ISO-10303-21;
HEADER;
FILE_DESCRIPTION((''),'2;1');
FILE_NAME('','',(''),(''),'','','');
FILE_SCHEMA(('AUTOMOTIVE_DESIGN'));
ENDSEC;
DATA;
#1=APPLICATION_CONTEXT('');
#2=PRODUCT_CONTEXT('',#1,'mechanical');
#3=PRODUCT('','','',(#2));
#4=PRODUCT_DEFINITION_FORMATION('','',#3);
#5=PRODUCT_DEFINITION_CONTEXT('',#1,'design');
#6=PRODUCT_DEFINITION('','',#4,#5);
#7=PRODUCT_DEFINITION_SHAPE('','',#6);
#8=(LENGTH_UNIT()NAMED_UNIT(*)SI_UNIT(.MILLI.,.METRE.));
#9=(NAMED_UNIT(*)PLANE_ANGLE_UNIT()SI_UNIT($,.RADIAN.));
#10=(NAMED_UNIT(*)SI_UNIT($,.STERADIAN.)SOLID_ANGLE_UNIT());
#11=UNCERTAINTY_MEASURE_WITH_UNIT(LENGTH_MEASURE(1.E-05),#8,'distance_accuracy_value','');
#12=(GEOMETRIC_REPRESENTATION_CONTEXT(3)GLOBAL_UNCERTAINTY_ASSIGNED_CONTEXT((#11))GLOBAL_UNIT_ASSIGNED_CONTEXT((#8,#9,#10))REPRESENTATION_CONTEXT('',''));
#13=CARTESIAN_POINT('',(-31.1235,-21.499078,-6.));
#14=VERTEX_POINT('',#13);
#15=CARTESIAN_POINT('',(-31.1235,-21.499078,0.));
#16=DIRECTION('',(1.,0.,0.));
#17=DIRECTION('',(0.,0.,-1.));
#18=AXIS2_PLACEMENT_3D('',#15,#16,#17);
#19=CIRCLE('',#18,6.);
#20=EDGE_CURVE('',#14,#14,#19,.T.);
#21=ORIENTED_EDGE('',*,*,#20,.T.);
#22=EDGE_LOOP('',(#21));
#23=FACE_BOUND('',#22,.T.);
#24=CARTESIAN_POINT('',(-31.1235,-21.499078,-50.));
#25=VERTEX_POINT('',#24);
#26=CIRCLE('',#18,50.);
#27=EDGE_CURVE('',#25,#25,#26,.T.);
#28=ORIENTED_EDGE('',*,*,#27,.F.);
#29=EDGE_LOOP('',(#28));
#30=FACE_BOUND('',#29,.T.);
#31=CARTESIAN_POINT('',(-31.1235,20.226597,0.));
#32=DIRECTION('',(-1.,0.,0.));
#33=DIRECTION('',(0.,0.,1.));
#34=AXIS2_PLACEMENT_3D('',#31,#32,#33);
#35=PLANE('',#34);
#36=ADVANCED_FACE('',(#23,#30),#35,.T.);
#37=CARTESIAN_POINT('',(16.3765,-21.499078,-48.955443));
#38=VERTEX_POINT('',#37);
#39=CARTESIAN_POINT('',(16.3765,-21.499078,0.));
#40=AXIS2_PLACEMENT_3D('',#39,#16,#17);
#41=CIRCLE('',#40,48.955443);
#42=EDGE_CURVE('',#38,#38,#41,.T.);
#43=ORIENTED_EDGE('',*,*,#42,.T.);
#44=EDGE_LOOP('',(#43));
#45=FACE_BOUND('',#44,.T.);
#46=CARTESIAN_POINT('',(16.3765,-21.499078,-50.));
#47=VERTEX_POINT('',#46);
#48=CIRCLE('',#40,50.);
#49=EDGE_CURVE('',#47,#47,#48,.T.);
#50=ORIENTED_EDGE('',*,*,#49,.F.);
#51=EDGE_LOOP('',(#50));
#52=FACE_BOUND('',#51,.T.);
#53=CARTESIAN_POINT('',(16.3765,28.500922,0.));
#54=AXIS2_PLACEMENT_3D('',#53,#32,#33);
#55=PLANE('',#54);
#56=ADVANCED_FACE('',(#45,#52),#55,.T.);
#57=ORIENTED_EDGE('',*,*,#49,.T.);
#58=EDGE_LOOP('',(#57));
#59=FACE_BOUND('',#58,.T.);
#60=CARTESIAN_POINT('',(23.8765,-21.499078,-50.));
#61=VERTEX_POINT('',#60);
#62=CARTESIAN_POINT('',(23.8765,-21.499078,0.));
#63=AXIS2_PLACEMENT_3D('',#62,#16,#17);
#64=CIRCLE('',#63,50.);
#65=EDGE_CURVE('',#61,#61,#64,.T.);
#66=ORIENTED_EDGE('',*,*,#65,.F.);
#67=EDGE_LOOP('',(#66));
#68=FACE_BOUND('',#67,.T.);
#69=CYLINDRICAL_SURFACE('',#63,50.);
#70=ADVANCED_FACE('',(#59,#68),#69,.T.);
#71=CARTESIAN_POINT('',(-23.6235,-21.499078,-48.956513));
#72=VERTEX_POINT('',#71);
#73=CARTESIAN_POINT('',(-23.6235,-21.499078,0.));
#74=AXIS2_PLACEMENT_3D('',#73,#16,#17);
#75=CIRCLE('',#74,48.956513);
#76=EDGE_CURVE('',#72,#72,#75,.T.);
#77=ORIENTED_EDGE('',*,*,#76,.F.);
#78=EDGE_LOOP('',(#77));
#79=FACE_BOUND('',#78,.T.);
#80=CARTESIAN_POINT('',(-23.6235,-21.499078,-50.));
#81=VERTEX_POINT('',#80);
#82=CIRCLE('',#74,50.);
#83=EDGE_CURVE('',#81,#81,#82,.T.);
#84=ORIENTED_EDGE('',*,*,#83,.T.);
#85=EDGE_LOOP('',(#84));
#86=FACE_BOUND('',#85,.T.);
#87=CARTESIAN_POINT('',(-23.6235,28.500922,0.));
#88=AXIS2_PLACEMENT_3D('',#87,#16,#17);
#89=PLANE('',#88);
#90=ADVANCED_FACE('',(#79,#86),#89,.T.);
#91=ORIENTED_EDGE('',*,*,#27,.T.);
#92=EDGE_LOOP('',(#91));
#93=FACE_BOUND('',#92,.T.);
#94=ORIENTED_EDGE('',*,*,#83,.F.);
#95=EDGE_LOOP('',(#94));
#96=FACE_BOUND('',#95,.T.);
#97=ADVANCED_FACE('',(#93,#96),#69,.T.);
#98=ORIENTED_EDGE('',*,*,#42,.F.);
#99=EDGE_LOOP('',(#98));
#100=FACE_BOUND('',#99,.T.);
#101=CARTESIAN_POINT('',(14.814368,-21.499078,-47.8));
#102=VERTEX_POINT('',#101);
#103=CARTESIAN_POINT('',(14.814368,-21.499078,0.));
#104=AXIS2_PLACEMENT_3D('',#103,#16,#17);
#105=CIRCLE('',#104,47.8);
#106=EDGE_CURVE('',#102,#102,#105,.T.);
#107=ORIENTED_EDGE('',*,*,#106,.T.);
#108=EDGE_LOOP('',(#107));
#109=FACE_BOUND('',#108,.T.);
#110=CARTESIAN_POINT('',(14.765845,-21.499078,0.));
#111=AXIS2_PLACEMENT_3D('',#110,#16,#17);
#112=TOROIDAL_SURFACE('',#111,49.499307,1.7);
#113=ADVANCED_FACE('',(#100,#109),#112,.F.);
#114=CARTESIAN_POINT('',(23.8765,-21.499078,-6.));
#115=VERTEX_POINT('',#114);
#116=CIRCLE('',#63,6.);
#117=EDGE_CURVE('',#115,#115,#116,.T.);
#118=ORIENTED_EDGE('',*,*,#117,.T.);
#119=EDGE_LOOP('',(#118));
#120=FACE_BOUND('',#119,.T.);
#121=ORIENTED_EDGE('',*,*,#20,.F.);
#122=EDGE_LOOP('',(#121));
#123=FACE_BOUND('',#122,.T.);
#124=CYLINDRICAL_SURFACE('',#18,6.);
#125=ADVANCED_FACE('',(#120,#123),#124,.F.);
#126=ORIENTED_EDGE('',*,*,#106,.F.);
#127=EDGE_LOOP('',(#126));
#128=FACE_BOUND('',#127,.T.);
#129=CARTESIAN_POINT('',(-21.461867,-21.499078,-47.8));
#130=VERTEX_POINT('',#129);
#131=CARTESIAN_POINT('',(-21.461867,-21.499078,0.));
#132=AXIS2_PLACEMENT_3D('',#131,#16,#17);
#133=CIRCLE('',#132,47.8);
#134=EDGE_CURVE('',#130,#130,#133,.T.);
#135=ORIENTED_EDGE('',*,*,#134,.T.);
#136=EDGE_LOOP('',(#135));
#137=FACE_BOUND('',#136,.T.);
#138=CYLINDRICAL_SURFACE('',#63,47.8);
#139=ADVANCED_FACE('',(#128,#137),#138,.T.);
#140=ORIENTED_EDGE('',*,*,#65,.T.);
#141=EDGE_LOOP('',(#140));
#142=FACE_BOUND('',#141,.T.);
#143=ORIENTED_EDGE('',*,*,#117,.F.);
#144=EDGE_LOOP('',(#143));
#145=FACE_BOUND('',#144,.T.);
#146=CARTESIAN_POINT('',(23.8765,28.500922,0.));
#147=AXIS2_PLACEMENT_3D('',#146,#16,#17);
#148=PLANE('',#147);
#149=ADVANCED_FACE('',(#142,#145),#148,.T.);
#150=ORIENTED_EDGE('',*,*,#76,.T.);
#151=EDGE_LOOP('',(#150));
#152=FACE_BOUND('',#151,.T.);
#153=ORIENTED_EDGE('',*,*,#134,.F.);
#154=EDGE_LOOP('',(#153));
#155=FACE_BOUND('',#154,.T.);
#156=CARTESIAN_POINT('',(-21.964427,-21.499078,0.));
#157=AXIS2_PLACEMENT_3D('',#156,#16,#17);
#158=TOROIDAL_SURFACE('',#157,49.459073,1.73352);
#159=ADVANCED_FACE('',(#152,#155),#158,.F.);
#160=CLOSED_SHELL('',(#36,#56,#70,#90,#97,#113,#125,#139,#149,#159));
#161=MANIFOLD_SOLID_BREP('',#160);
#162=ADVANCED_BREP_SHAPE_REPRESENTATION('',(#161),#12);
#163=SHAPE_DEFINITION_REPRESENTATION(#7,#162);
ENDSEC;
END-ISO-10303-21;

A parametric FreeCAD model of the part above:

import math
import FreeCAD as App
import Part
import Sketcher

V = App.Vector

doc = App.newDocument("Part")
params = doc.addObject("Spreadsheet::Sheet", "Params")
for row, (alias, value) in enumerate([
    ("sketch1_radius", "1.7 mm"),
    ("sketch1_width", "55 mm"),
    ("sketch1_height", "50 mm"),
    ("sketch1_width2", "7.5 mm"),
    ("revolution_angle", "360 deg"),
    ("sketch2_diameter", "12 mm"),
], start=1):
    params.set(f"A{row}", alias)
    params.set(f"B{row}", "=" + value)
    params.setAlias(f"B{row}", alias)

body = doc.addObject("PartDesign::Body", "Body")

# Sketch on XY plane
sketch1 = doc.addObject("Sketcher::SketchObject", "Sketch")
body.addObject(sketch1)
sketch1.AttachmentSupport = (doc.XY_Plane, [""])
sketch1.MapMode = "FlatFace"
sketch1.addGeometry(Part.LineSegment(V(23.9, -21.5, 0), V(23.9, 28.5, 0)), False)
sketch1.addGeometry(Part.LineSegment(V(23.9, 28.5, 0), V(16.4, 28.5, 0)), False)
sketch1.addGeometry(Part.LineSegment(V(16.4, 28.5, 0), V(16.4, 27.5, 0)), False)
sketch1.addGeometry(Part.ArcOfCircle(Part.Circle(V(14.8, 28, 0), V(0, 0, 1), 1.7), math.radians(-88), math.radians(-19)), False)
sketch1.addGeometry(Part.LineSegment(V(14.8, 26.3, 0), V(-21.5, 26.3, 0)), False)
sketch1.addGeometry(Part.ArcOfCircle(Part.Circle(V(-22, 28, 0), V(0, 0, 1), 1.7), math.radians(-163), math.radians(-73)), False)
sketch1.addGeometry(Part.LineSegment(V(-23.6, 27.5, 0), V(-23.6, 28.5, 0)), False)
sketch1.addGeometry(Part.LineSegment(V(-23.6, 28.5, 0), V(-31.1, 28.5, 0)), False)
sketch1.addGeometry(Part.LineSegment(V(-31.1, 28.5, 0), V(-31.1, -21.5, 0)), False)
sketch1.addGeometry(Part.LineSegment(V(-31.1, -21.5, 0), V(23.9, -21.5, 0)), False)
sketch1.addGeometry(Part.LineSegment(V(23.9, -21.5, 0), V(-31.1, -21.5, 0)), True)  # axis
sketch1.addConstraint(Sketcher.Constraint("Coincident", 0, 2, 1, 1))
sketch1.addConstraint(Sketcher.Constraint("Coincident", 1, 2, 2, 1))
sketch1.addConstraint(Sketcher.Constraint("Coincident", 2, 2, 3, 2))
sketch1.addConstraint(Sketcher.Constraint("Coincident", 3, 1, 4, 1))
sketch1.addConstraint(Sketcher.Constraint("Coincident", 4, 2, 5, 2))
sketch1.addConstraint(Sketcher.Constraint("Coincident", 5, 1, 6, 1))
sketch1.addConstraint(Sketcher.Constraint("Coincident", 6, 2, 7, 1))
sketch1.addConstraint(Sketcher.Constraint("Coincident", 7, 2, 8, 1))
sketch1.addConstraint(Sketcher.Constraint("Coincident", 8, 2, 9, 1))
sketch1.addConstraint(Sketcher.Constraint("Coincident", 9, 2, 0, 1))
sketch1.addConstraint(Sketcher.Constraint("Vertical", 0))
sketch1.addConstraint(Sketcher.Constraint("Horizontal", 1))
sketch1.addConstraint(Sketcher.Constraint("Vertical", 2))
sketch1.addConstraint(Sketcher.Constraint("Horizontal", 4))
sketch1.addConstraint(Sketcher.Constraint("Vertical", 6))
sketch1.addConstraint(Sketcher.Constraint("Horizontal", 7))
sketch1.addConstraint(Sketcher.Constraint("Vertical", 8))
sketch1.addConstraint(Sketcher.Constraint("Horizontal", 9))
sketch1.addConstraint(Sketcher.Constraint("Horizontal", 10))
sketch1.addConstraint(Sketcher.Constraint("Coincident", 10, 1, 9, 2))
sketch1.addConstraint(Sketcher.Constraint("Horizontal", 1, 2, 6, 2))
sketch1.addConstraint(Sketcher.Constraint("Vertical", 7, 2, 10, 2))
sketch1.addConstraint(Sketcher.Constraint("Equal", 1, 7))
sketch1.addConstraint(Sketcher.Constraint("Radius", 3, 1.7))
sketch1.addConstraint(Sketcher.Constraint("DistanceX", 9, 1, 9, 2, 55.0))
sketch1.addConstraint(Sketcher.Constraint("DistanceY", 0, 1, 0, 2, 50.0))
sketch1.addConstraint(Sketcher.Constraint("DistanceX", 1, 2, 1, 1, 7.5))
sketch1.addConstraint(Sketcher.Constraint("DistanceY", 3, 1, 1, 2, 2.2))
sketch1.addConstraint(Sketcher.Constraint("Radius", 5, 1.73352))
sketch1.addConstraint(Sketcher.Constraint("DistanceX", -1, 1, 0, 2, 23.8765))
sketch1.addConstraint(Sketcher.Constraint("DistanceX", 4, 2, 4, 1, 36.276235))
sketch1.addConstraint(Sketcher.Constraint("DistanceY", 2, 2, 2, 1, 1.044557))
sketch1.addConstraint(Sketcher.Constraint("DistanceY", 6, 1, 6, 2, 1.043487))
sketch1.addConstraint(Sketcher.Constraint("DistanceY", -1, 1, 3, 3, 28.000229))
sketch1.addConstraint(Sketcher.Constraint("DistanceY", -1, 1, 0, 2, 28.500922))
sketch1.setExpression("Constraints[23]", "Params.sketch1_radius")
sketch1.setExpression("Constraints[24]", "Params.sketch1_width")
sketch1.setExpression("Constraints[25]", "Params.sketch1_height")
sketch1.setExpression("Constraints[26]", "Params.sketch1_width2")
revolution = doc.addObject("PartDesign::Revolution", "Revolution")
body.addObject(revolution)
revolution.Profile = sketch1
revolution.ReferenceAxis = (sketch1, ["Axis0"])
revolution.setExpression("Angle", "Params.revolution_angle")

# Sketch on YZ plane
sketch2 = doc.addObject("Sketcher::SketchObject", "Sketch001")
body.addObject(sketch2)
sketch2.AttachmentSupport = (doc.YZ_Plane, [""])
sketch2.MapMode = "FlatFace"
sketch2.AttachmentOffset = App.Placement(V(0, 0, 23.8765), App.Rotation())
sketch2.addGeometry(Part.Circle(V(-21, 0, 0), V(0, 0, 1), 6), False)
sketch2.addConstraint(Sketcher.Constraint("PointOnObject", 0, 3, -1))
sketch2.addConstraint(Sketcher.Constraint("Diameter", 0, 12.0))
sketch2.addConstraint(Sketcher.Constraint("DistanceX", 0, 3, -1, 1, 21.499078))
sketch2.setExpression("Constraints[1]", "Params.sketch2_diameter")
pocket1 = doc.addObject("PartDesign::Pocket", "Pocket")
body.addObject(pocket1)
pocket1.Profile = sketch2
pocket1.Type = "ThroughAll"

doc.recompute()
